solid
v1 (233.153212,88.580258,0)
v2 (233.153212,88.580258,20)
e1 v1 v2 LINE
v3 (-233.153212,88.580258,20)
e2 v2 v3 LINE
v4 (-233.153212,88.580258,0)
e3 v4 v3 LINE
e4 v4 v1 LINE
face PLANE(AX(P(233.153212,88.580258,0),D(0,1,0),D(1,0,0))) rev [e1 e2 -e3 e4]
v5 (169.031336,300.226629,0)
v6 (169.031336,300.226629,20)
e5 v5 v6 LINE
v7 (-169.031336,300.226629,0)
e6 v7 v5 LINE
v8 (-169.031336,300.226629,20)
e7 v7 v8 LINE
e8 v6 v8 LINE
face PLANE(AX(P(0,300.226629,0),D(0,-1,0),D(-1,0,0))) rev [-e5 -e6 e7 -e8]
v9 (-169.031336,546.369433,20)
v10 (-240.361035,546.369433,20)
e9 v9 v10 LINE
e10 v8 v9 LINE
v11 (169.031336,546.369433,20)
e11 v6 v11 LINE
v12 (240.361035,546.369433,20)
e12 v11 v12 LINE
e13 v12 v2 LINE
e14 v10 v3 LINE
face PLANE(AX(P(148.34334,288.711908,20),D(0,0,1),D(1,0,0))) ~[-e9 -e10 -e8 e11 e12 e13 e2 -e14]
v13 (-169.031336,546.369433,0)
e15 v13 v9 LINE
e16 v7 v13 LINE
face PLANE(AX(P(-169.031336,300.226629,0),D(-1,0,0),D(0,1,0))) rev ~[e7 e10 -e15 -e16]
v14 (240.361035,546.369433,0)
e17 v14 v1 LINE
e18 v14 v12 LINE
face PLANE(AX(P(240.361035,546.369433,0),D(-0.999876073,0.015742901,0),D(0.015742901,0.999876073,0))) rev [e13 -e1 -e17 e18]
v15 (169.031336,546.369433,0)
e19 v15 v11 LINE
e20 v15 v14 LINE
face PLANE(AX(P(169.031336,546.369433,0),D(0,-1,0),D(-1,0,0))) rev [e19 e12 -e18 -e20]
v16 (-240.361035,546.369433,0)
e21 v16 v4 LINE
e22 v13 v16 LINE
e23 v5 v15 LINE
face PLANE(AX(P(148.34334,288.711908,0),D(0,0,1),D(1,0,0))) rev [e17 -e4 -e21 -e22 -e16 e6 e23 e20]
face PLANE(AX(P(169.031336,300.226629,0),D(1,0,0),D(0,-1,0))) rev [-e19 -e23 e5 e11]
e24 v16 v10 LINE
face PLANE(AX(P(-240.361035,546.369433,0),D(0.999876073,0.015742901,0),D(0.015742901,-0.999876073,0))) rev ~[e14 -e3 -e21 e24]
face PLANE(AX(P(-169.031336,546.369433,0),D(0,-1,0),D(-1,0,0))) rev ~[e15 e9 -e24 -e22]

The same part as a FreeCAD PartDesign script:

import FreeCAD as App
import Part
import Sketcher

V = App.Vector
Q = App.Units.Quantity

doc = App.newDocument("Part")
body = doc.addObject("PartDesign::Body", "Body")

sketch1 = body.newObject("Sketcher::SketchObject", "Sketch")
sketch1.AttachmentSupport = (doc.getObject("XY_Plane"), [""])
sketch1.MapMode = "FlatFace"
sketch1.addGeometry([
    Part.LineSegment(V(-233.153212, 88.580258, 0), V(0, 88.580258, 0)),
    Part.LineSegment(V(0, 88.580258, 0), V(0, 300.226629, 0)),
    Part.LineSegment(V(0, 300.226629, 0), V(-169.031336, 300.226629, 0)),
    Part.LineSegment(V(-169.031336, 300.226629, 0), V(-169.031336, 546.369433, 0)),
    Part.LineSegment(V(-169.031336, 546.369433, 0), V(-240.361035, 546.369433, 0)),
    Part.LineSegment(V(-240.361035, 546.369433, 0), V(-233.153212, 88.580258, 0)),
], False)
sketch1.addConstraint([
    Sketcher.Constraint("Coincident", 0, 2, 1, 1),
    Sketcher.Constraint("Coincident", 1, 2, 2, 1),
    Sketcher.Constraint("Coincident", 2, 2, 3, 1),
    Sketcher.Constraint("Coincident", 3, 2, 4, 1),
    Sketcher.Constraint("Coincident", 4, 2, 5, 1),
    Sketcher.Constraint("Coincident", 5, 2, 0, 1),
    Sketcher.Constraint("Horizontal", 0),
    Sketcher.Constraint("Vertical", 1),
    Sketcher.Constraint("Horizontal", 2),
    Sketcher.Constraint("Vertical", 3),
    Sketcher.Constraint("Horizontal", 4),
    Sketcher.Constraint("PointOnObject", 0, 2, -2),
    Sketcher.Constraint("DistanceX", 4, 2, 4, 1, Q("71.329699 mm")),
    Sketcher.Constraint("DistanceX", 0, 1, 0, 2, Q("233.153212 mm")),
    Sketcher.Constraint("DistanceY", 1, 1, 1, 2, Q("211.646371 mm")),
    Sketcher.Constraint("DistanceX", 2, 2, 2, 1, Q("169.031336 mm")),
    Sketcher.Constraint("DistanceY", 3, 1, 3, 2, Q("246.142804 mm")),
    Sketcher.Constraint("DistanceY", -1, 1, 0, 2, Q("88.580258 mm")),
])
pad1 = body.newObject("PartDesign::Pad", "Pad")
pad1.Profile = sketch1
pad1.Length = 20
body2 = doc.addObject("PartDesign::Body", "Body001")
doc.recompute()

body2.BaseFeature = body
doc.recompute()

mirroring = doc.addObject("Part::Mirroring", "Mirroring")
mirroring.Source = body
mirroring.Base = V(0, 0, 0)
mirroring.Normal = V(1, 0, 0)
body3 = doc.addObject("PartDesign::Body", "Body002")
body3.BaseFeature = mirroring
boolean = body2.newObject("PartDesign::Boolean", "Boolean")
boolean.Type = "Fuse"
boolean.addObjects([body3])
doc.recompute()
mirroring.Visibility = False

doc.recompute()
